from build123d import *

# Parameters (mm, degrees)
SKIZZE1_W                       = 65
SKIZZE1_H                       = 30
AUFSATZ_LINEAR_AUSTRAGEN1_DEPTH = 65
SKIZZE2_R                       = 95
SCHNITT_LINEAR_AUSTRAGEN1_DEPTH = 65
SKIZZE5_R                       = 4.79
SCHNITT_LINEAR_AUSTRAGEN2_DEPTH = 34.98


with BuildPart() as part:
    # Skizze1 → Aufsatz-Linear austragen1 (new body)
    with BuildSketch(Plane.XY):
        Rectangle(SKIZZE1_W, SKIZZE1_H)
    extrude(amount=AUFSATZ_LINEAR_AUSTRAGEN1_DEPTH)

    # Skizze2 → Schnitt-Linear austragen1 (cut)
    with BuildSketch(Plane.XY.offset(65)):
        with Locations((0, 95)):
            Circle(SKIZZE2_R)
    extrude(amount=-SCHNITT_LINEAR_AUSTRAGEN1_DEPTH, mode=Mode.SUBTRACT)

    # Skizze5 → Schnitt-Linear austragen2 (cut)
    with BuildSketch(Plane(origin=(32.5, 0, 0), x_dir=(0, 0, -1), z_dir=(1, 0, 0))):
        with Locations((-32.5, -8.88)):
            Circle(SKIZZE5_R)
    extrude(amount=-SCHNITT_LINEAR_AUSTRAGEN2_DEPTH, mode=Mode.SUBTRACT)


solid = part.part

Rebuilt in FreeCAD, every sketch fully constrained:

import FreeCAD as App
import Part
import Sketcher
Q = App.Units.Quantity

doc = App.newDocument("Part")
params = doc.addObject("Spreadsheet::Sheet", "Params")
for row, (alias, value) in enumerate([
    ("sketch1_width", "65 mm"),
    ("sketch1_height", "30 mm"),
    ("pad1_length", "65 mm"),
    ("sketch2_diameter", "190 mm"),
    ("pocket1_length", "65 mm"),
    ("sketch3_diameter", "9.58 mm"),
    ("pocket2_length", "34.98 mm"),
], start=1):
    params.set(f"A{row}", alias)
    params.set(f"B{row}", "=" + value)
    params.setAlias(f"B{row}", alias)

body = doc.addObject("PartDesign::Body", "Body")

sketch1 = body.newObject("Sketcher::SketchObject", "Sketch")
sketch1.AttachmentSupport = (doc.getObject("XY_Plane"), [""])
sketch1.MapMode = "FlatFace"
sketch1.addGeometry([
    Part.LineSegment(App.Vector(-32, 15, 0), App.Vector(-32, -15, 0)),
    Part.LineSegment(App.Vector(-32, -15, 0), App.Vector(32, -15, 0)),
    Part.LineSegment(App.Vector(32, -15, 0), App.Vector(32, 15, 0)),
    Part.LineSegment(App.Vector(32, 15, 0), App.Vector(-32, 15, 0)),
], False)
sketch1.addConstraint([
    Sketcher.Constraint("Coincident", 0, 2, 1, 1),
    Sketcher.Constraint("Coincident", 1, 2, 2, 1),
    Sketcher.Constraint("Coincident", 2, 2, 3, 1),
    Sketcher.Constraint("Coincident", 3, 2, 0, 1),
    Sketcher.Constraint("Vertical", 0),
    Sketcher.Constraint("Horizontal", 1),
    Sketcher.Constraint("Vertical", 2),
    Sketcher.Constraint("Horizontal", 3),
    Sketcher.Constraint("Symmetric", 0, 2, 2, 2, -1, 1),
    Sketcher.Constraint("DistanceX", 1, 1, 1, 2, Q("65 mm")),
    Sketcher.Constraint("DistanceY", 0, 2, 0, 1, Q("30 mm")),
])
sketch1.setExpression("Constraints[9]", "Params.sketch1_width")
sketch1.setExpression("Constraints[10]", "Params.sketch1_height")
pad1 = body.newObject("PartDesign::Pad", "Pad")
pad1.Profile = sketch1
pad1.setExpression("Length", "Params.pad1_length")

sketch2 = body.newObject("Sketcher::SketchObject", "Sketch001")
sketch2.AttachmentSupport = (doc.getObject("XY_Plane"), [""])
sketch2.MapMode = "FlatFace"
sketch2.AttachmentOffset = App.Placement(App.Vector(0, 0, 65), App.Rotation())
sketch2.addGeometry(Part.Circle(App.Vector(0, 95, 0), App.Vector(0, 0, 1), 95), False)
sketch2.addConstraint([
    Sketcher.Constraint("PointOnObject", 0, 3, -2),
    Sketcher.Constraint("Diameter", 0, Q("190 mm")),
    Sketcher.Constraint("DistanceY", -1, 1, 0, 3, Q("95 mm")),
])
sketch2.setExpression("Constraints[1]", "Params.sketch2_diameter")
pocket1 = body.newObject("PartDesign::Pocket", "Pocket")
pocket1.Profile = sketch2
pocket1.setExpression("Length", "Params.pocket1_length")

sketch3 = body.newObject("Sketcher::SketchObject", "Sketch002")
sketch3.AttachmentSupport = (doc.getObject("YZ_Plane"), [""])
sketch3.MapMode = "FlatFace"
sketch3.AttachmentOffset = App.Placement(App.Vector(0, 0, 32.5), App.Rotation())
sketch3.addGeometry(Part.Circle(App.Vector(-8.9, 32.5, 0), App.Vector(0, 0, 1), 4.8), False)
sketch3.addConstraint([
    Sketcher.Constraint("Diameter", 0, Q("9.58 mm")),
    Sketcher.Constraint("DistanceY", -1, 1, 0, 3, Q("32.5 mm")),
    Sketcher.Constraint("DistanceX", 0, 3, -1, 1, Q("8.88 mm")),
])
sketch3.setExpression("Constraints[0]", "Params.sketch3_diameter")
pocket2 = body.newObject("PartDesign::Pocket", "Pocket001")
pocket2.Profile = sketch3
pocket2.setExpression("Length", "Params.pocket2_length")

doc.recompute()
